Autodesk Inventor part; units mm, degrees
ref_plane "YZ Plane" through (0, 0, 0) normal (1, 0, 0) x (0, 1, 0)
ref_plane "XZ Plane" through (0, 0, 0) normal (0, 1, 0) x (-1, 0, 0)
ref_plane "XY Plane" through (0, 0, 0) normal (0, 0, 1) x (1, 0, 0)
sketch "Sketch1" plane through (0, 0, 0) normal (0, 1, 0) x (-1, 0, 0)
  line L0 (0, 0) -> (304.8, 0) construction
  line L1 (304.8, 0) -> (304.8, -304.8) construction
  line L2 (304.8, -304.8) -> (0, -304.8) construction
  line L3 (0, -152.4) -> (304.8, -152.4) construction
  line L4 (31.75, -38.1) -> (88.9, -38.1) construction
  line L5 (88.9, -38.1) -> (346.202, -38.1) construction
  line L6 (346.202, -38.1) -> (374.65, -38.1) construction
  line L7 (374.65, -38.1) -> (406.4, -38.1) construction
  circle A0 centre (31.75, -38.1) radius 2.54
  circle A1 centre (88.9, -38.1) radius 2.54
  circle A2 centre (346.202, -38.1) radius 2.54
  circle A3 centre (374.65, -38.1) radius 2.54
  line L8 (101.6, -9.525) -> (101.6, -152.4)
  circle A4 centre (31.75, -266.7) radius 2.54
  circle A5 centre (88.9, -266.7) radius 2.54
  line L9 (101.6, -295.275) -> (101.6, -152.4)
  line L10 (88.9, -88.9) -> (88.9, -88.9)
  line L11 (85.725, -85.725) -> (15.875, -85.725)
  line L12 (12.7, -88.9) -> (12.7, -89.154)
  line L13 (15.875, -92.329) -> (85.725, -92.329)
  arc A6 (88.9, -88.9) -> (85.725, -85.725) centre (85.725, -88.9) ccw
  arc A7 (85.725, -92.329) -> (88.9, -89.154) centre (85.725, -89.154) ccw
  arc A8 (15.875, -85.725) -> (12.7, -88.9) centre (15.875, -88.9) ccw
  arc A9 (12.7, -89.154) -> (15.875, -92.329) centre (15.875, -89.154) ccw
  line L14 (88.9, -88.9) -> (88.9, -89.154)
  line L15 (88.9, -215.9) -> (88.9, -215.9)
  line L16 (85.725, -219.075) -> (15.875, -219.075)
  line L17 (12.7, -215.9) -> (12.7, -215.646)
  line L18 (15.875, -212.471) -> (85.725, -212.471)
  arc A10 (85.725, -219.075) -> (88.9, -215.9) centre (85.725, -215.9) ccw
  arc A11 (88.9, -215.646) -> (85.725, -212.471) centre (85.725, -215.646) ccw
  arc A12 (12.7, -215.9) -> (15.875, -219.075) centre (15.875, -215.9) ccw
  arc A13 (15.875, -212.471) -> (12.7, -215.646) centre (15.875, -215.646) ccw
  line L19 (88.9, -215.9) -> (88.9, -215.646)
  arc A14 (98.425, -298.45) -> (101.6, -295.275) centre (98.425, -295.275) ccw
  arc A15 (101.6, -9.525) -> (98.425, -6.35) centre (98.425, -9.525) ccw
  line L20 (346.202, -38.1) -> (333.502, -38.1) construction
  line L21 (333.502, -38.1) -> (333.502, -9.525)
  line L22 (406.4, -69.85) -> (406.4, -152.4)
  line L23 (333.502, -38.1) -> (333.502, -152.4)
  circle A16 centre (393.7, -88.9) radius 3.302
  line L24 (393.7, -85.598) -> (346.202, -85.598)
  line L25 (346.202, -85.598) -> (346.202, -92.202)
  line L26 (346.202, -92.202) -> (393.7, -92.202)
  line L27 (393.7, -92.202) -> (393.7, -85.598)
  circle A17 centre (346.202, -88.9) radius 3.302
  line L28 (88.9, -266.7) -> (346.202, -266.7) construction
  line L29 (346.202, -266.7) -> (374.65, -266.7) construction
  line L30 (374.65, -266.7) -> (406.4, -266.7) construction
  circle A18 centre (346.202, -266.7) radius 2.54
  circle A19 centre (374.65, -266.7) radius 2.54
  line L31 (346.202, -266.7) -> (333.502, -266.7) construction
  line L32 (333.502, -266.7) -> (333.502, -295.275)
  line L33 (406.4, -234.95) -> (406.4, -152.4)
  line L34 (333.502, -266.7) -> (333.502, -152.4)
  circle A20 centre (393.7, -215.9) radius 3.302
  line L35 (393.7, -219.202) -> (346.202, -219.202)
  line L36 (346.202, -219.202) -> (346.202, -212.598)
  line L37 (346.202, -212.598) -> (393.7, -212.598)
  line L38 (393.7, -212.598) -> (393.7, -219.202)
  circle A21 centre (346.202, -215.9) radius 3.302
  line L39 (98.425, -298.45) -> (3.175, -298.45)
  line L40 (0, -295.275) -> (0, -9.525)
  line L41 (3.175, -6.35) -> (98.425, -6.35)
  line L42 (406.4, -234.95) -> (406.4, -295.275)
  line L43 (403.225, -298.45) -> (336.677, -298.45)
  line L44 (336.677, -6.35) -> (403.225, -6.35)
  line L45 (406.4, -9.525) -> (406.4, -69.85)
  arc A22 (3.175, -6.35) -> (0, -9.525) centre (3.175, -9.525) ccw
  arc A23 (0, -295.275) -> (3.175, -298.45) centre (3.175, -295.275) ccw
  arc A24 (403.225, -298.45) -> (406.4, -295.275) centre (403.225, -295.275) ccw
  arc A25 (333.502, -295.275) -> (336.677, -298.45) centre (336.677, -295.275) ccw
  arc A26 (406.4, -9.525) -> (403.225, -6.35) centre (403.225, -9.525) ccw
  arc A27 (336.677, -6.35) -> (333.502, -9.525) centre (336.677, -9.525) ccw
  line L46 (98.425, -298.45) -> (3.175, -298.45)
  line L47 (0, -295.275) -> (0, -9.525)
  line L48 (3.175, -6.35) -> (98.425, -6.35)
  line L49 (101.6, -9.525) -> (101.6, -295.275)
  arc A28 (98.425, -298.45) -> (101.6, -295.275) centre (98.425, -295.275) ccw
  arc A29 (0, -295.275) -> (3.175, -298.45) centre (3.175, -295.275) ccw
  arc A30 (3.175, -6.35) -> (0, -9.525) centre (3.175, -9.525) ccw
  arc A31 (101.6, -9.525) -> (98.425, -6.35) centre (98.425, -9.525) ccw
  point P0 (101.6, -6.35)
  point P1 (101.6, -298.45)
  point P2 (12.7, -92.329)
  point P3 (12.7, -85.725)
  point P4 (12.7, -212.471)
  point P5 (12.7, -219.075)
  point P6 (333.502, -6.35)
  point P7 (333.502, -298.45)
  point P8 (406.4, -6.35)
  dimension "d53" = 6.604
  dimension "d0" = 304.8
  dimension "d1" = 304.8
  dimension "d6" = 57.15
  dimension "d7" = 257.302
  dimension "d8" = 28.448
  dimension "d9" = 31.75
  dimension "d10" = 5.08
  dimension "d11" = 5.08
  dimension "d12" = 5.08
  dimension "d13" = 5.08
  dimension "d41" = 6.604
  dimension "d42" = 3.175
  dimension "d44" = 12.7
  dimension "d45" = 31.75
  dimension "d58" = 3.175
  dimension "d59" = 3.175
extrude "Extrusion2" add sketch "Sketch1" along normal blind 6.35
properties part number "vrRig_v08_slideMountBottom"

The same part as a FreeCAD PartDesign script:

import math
import FreeCAD as App
import Part
import Sketcher
from FreeCAD import Vector
Q = App.Units.Quantity

doc = App.newDocument("Part")
body = doc.addObject("PartDesign::Body", "Body")
body.AllowCompound = True

# Sketch on XZ plane
sketch1 = body.newObject("Sketcher::SketchObject", "Sketch")
sketch1.AttachmentSupport = (doc.getObject("XZ_Plane"), [""])
sketch1.MapMode = "FlatFace"
sketch1.addGeometry([
    Part.LineSegment(Vector(-101.6, -295.275, 0), Vector(-101.6, -9.525, 0)),  # 0
    Part.ArcOfCircle(Part.Circle(Vector(-98.425, -9.525, 0), Vector(0, 0, 1), 3.175), math.radians(90), math.radians(180)),  # 1
    Part.LineSegment(Vector(-98.425, -6.35, 0), Vector(-3.175, -6.35, 0)),  # 2
    Part.ArcOfCircle(Part.Circle(Vector(-3.175, -9.525, 0), Vector(0, 0, 1), 3.175), math.radians(0), math.radians(90)),  # 3
    Part.LineSegment(Vector(0, -9.525, 0), Vector(0, -295.275, 0)),  # 4
    Part.ArcOfCircle(Part.Circle(Vector(-3.175, -295.275, 0), Vector(0, 0, 1), 3.175), math.radians(-90), math.radians(0)),  # 5
    Part.LineSegment(Vector(-3.175, -298.45, 0), Vector(-98.425, -298.45, 0)),  # 6
    Part.ArcOfCircle(Part.Circle(Vector(-98.425, -295.275, 0), Vector(0, 0, 1), 3.175), math.radians(180), math.radians(270)),  # 7
    Part.Circle(Vector(-31.75, -266.7, 0), Vector(0, 0, 1), 2.54),  # 8
    Part.Circle(Vector(-88.9, -266.7, 0), Vector(0, 0, 1), 2.54),  # 9
    Part.ArcOfCircle(Part.Circle(Vector(-85.725, -215.9, 0), Vector(0, 0, 1), 3.175), math.radians(180), math.radians(270)),  # 10
    Part.LineSegment(Vector(-85.725, -219.075, 0), Vector(-15.875, -219.075, 0)),  # 11
    Part.ArcOfCircle(Part.Circle(Vector(-15.875, -215.9, 0), Vector(0, 0, 1), 3.175), math.radians(-90), math.radians(0)),  # 12
    Part.LineSegment(Vector(-12.7, -215.9, 0), Vector(-12.7, -215.646, 0)),  # 13
    Part.ArcOfCircle(Part.Circle(Vector(-15.875, -215.646, 0), Vector(0, 0, 1), 3.175), math.radians(0), math.radians(90)),  # 14
    Part.LineSegment(Vector(-15.875, -212.471, 0), Vector(-85.725, -212.471, 0)),  # 15
    Part.ArcOfCircle(Part.Circle(Vector(-85.725, -215.646, 0), Vector(0, 0, 1), 3.175), math.radians(90), math.radians(180)),  # 16
    Part.LineSegment(Vector(-88.9, -215.646, 0), Vector(-88.9, -215.9, 0)),  # 17
    Part.LineSegment(Vector(-15.875, -85.725, 0), Vector(-85.725, -85.725, 0)),  # 18
    Part.ArcOfCircle(Part.Circle(Vector(-85.725, -88.9, 0), Vector(0, 0, 1), 3.175), math.radians(90), math.radians(180)),  # 19
    Part.LineSegment(Vector(-88.9, -88.9, 0), Vector(-88.9, -89.154, 0)),  # 20
    Part.ArcOfCircle(Part.Circle(Vector(-85.725, -89.154, 0), Vector(0, 0, 1), 3.175), math.radians(180), math.radians(270)),  # 21
    Part.LineSegment(Vector(-85.725, -92.329, 0), Vector(-15.875, -92.329, 0)),  # 22
    Part.ArcOfCircle(Part.Circle(Vector(-15.875, -89.154, 0), Vector(0, 0, 1), 3.175), math.radians(-90), math.radians(0)),  # 23
    Part.LineSegment(Vector(-12.7, -89.154, 0), Vector(-12.7, -88.9, 0)),  # 24
    Part.ArcOfCircle(Part.Circle(Vector(-15.875, -88.9, 0), Vector(0, 0, 1), 3.175), math.radians(0), math.radians(90)),  # 25
    Part.Circle(Vector(-31.75, -38.1, 0), Vector(0, 0, 1), 2.54),  # 26
    Part.Circle(Vector(-88.9, -38.1, 0), Vector(0, 0, 1), 2.54),  # 27
    Part.LineSegment(Vector(-333.502, -9.525, 0), Vector(-333.502, -295.275, 0)),  # 28
    Part.ArcOfCircle(Part.Circle(Vector(-336.677, -295.275, 0), Vector(0, 0, 1), 3.175), math.radians(-90), math.radians(0)),  # 29
    Part.LineSegment(Vector(-336.677, -298.45, 0), Vector(-403.225, -298.45, 0)),  # 30
    Part.ArcOfCircle(Part.Circle(Vector(-403.225, -295.275, 0), Vector(0, 0, 1), 3.175), math.radians(180), math.radians(270)),  # 31
    Part.LineSegment(Vector(-406.4, -295.275, 0), Vector(-406.4, -9.525, 0)),  # 32
    Part.ArcOfCircle(Part.Circle(Vector(-403.225, -9.525, 0), Vector(0, 0, 1), 3.175), math.radians(90), math.radians(180)),  # 33
    Part.LineSegment(Vector(-403.225, -6.35, 0), Vector(-336.677, -6.35, 0)),  # 34
    Part.ArcOfCircle(Part.Circle(Vector(-336.677, -9.525, 0), Vector(0, 0, 1), 3.175), math.radians(0), math.radians(90)),  # 35
    Part.Circle(Vector(-346.202, -266.7, 0), Vector(0, 0, 1), 2.54),  # 36
    Part.Circle(Vector(-374.65, -266.7, 0), Vector(0, 0, 1), 2.54),  # 37
    Part.ArcOfCircle(Part.Circle(Vector(-393.7, -215.9, 0), Vector(0, 0, 1), 3.302), math.radians(90), math.radians(270)),  # 38
    Part.LineSegment(Vector(-393.7, -219.202, 0), Vector(-346.202, -219.202, 0)),  # 39
    Part.ArcOfCircle(Part.Circle(Vector(-346.202, -215.9, 0), Vector(0, 0, 1), 3.302), math.radians(-90), math.radians(90)),  # 40
    Part.LineSegment(Vector(-346.202, -212.598, 0), Vector(-393.7, -212.598, 0)),  # 41
    Part.ArcOfCircle(Part.Circle(Vector(-393.7, -88.9, 0), Vector(0, 0, 1), 3.302), math.radians(90), math.radians(270)),  # 42
    Part.LineSegment(Vector(-393.7, -92.202, 0), Vector(-346.202, -92.202, 0)),  # 43
    Part.ArcOfCircle(Part.Circle(Vector(-346.202, -88.9, 0), Vector(0, 0, 1), 3.302), math.radians(-90), math.radians(90)),  # 44
    Part.LineSegment(Vector(-346.202, -85.598, 0), Vector(-393.7, -85.598, 0)),  # 45
    Part.Circle(Vector(-346.202, -38.1, 0), Vector(0, 0, 1), 2.54),  # 46
    Part.Circle(Vector(-374.65, -38.1, 0), Vector(0, 0, 1), 2.54),  # 47
], False)
sketch1.addConstraint([
    Sketcher.Constraint("Tangent", 0, 2, 1, 2),
    Sketcher.Constraint("Tangent", 1, 1, 2, 1),
    Sketcher.Constraint("Tangent", 2, 2, 3, 2),
    Sketcher.Constraint("Tangent", 3, 1, 4, 1),
    Sketcher.Constraint("Tangent", 4, 2, 5, 2),
    Sketcher.Constraint("Tangent", 5, 1, 6, 1),
    Sketcher.Constraint("Tangent", 6, 2, 7, 2),
    Sketcher.Constraint("Tangent", 7, 1, 0, 1),
    Sketcher.Constraint("Tangent", 10, 2, 11, 1),
    Sketcher.Constraint("Tangent", 11, 2, 12, 1),
    Sketcher.Constraint("Tangent", 12, 2, 13, 1),
    Sketcher.Constraint("Tangent", 13, 2, 14, 1),
    Sketcher.Constraint("Tangent", 14, 2, 15, 1),
    Sketcher.Constraint("Tangent", 15, 2, 16, 1),
    Sketcher.Constraint("Tangent", 16, 2, 17, 1),
    Sketcher.Constraint("Tangent", 17, 2, 10, 1),
    Sketcher.Constraint("Tangent", 18, 2, 19, 1),
    Sketcher.Constraint("Tangent", 19, 2, 20, 1),
    Sketcher.Constraint("Tangent", 20, 2, 21, 1),
    Sketcher.Constraint("Tangent", 21, 2, 22, 1),
    Sketcher.Constraint("Tangent", 22, 2, 23, 1),
    Sketcher.Constraint("Tangent", 23, 2, 24, 1),
    Sketcher.Constraint("Tangent", 24, 2, 25, 1),
    Sketcher.Constraint("Tangent", 25, 2, 18, 1),
    Sketcher.Constraint("Tangent", 28, 2, 29, 2),
    Sketcher.Constraint("Tangent", 29, 1, 30, 1),
    Sketcher.Constraint("Tangent", 30, 2, 31, 2),
    Sketcher.Constraint("Tangent", 31, 1, 32, 1),
    Sketcher.Constraint("Tangent", 32, 2, 33, 2),
    Sketcher.Constraint("Tangent", 33, 1, 34, 1),
    Sketcher.Constraint("Tangent", 34, 2, 35, 2),
    Sketcher.Constraint("Tangent", 35, 1, 28, 1),
    Sketcher.Constraint("Tangent", 38, 2, 39, 1),
    Sketcher.Constraint("Tangent", 39, 2, 40, 1),
    Sketcher.Constraint("Tangent", 40, 2, 41, 1),
    Sketcher.Constraint("Tangent", 41, 2, 38, 1),
    Sketcher.Constraint("Tangent", 42, 2, 43, 1),
    Sketcher.Constraint("Tangent", 43, 2, 44, 1),
    Sketcher.Constraint("Tangent", 44, 2, 45, 1),
    Sketcher.Constraint("Tangent", 45, 2, 42, 1),
    Sketcher.Constraint("Vertical", 0),
    Sketcher.Constraint("Horizontal", 2),
    Sketcher.Constraint("Vertical", 4),
    Sketcher.Constraint("Horizontal", 6),
    Sketcher.Constraint("Horizontal", 11),
    Sketcher.Constraint("Vertical", 13),
    Sketcher.Constraint("Horizontal", 15),
    Sketcher.Constraint("Vertical", 17),
    Sketcher.Constraint("Horizontal", 18),
    Sketcher.Constraint("Vertical", 20),
    Sketcher.Constraint("Horizontal", 22),
    Sketcher.Constraint("Vertical", 24),
    Sketcher.Constraint("Vertical", 28),
    Sketcher.Constraint("Horizontal", 30),
    Sketcher.Constraint("Vertical", 32),
    Sketcher.Constraint("Horizontal", 34),
    Sketcher.Constraint("Horizontal", 39),
    Sketcher.Constraint("Horizontal", 41),
    Sketcher.Constraint("Horizontal", 43),
    Sketcher.Constraint("Horizontal", 45),
    Sketcher.Constraint("Equal", 1, 3),
    Sketcher.Constraint("Equal", 3, 5),
    Sketcher.Constraint("Equal", 5, 7),
    Sketcher.Constraint("Equal", 8, 9),
    Sketcher.Constraint("Equal", 7, 10),
    Sketcher.Constraint("Equal", 10, 12),
    Sketcher.Constraint("Equal", 12, 14),
    Sketcher.Constraint("Equal", 14, 16),
    Sketcher.Constraint("Equal", 16, 19),
    Sketcher.Constraint("Equal", 19, 21),
    Sketcher.Constraint("Equal", 21, 23),
    Sketcher.Constraint("Equal", 23, 25),
    Sketcher.Constraint("Equal", 9, 26),
    Sketcher.Constraint("Equal", 26, 27),
    Sketcher.Constraint("Equal", 25, 29),
    Sketcher.Constraint("Equal", 29, 31),
    Sketcher.Constraint("Equal", 31, 33),
    Sketcher.Constraint("Equal", 33, 35),
    Sketcher.Constraint("Equal", 27, 36),
    Sketcher.Constraint("Equal", 36, 37),
    Sketcher.Constraint("Equal", 40, 42),
    Sketcher.Constraint("Equal", 37, 46),
    Sketcher.Constraint("Equal", 46, 47),
    Sketcher.Constraint("PointOnObject", 3, 1, -2),
    Sketcher.Constraint("Horizontal", 8, 3, 9, 3),
    Sketcher.Constraint("Horizontal", 26, 3, 27, 3),
    Sketcher.Constraint("Horizontal", 7, 3, 29, 3),
    Sketcher.Constraint("Horizontal", 3, 3, 33, 3),
    Sketcher.Constraint("Horizontal", 9, 3, 36, 3),
    Sketcher.Constraint("Horizontal", 36, 3, 37, 3),
    Sketcher.Constraint("Horizontal", 12, 3, 38, 3),
    Sketcher.Constraint("Horizontal", 25, 3, 42, 3),
    Sketcher.Constraint("Horizontal", 27, 3, 46, 3),
    Sketcher.Constraint("Horizontal", 46, 3, 47, 3),
    Sketcher.Constraint("Vertical", 16, 3, 19, 3),
    Sketcher.Constraint("Vertical", 14, 3, 23, 3),
    Sketcher.Constraint("Vertical", 8, 3, 26, 3),
    Sketcher.Constraint("Vertical", 9, 3, 27, 3),
    Sketcher.Constraint("Vertical", 36, 3, 40, 3),
    Sketcher.Constraint("Vertical", 38, 3, 42, 3),
    Sketcher.Constraint("Vertical", 40, 3, 44, 3),
    Sketcher.Constraint("Vertical", 44, 3, 46, 3),
    Sketcher.Constraint("Vertical", 37, 3, 47, 3),
    Sketcher.Constraint("Vertical", 27, 3, 16, 2),
    Sketcher.Constraint("Equal", 17, 20),
    Sketcher.Constraint("Diameter", 8, Q("0.2 in")),
    Sketcher.Constraint("Radius", 38, Q("0.13 in")),
    Sketcher.Constraint("Radius", 1, Q("0.125 in")),
    Sketcher.Constraint("DistanceX", 12, 2, -1, 1, Q("0.5 in")),
    Sketcher.Constraint("DistanceX", 8, 3, -1, 1, Q("1.25 in")),
    Sketcher.Constraint("DistanceX", 0, 2, -1, 1, Q("4 in")),
    Sketcher.Constraint("DistanceX", 31, 1, -1, 1, Q("16 in")),
    Sketcher.Constraint("DistanceX", 11, 1, 11, 2, Q("2.75 in")),
    Sketcher.Constraint("DistanceX", 30, 2, 30, 1, Q("2.62 in")),
    Sketcher.Constraint("DistanceX", 39, 1, 39, 2, Q("1.87 in")),
    Sketcher.Constraint("DistanceY", 0, 1, 0, 2, Q("11.25 in")),
    Sketcher.Constraint("DistanceY", 13, 1, 13, 2, Q("0.01 in")),
    Sketcher.Constraint("DistanceY", 8, 3, -1, 1, Q("10.5 in")),
    Sketcher.Constraint("DistanceY", 10, 3, -1, 1, Q("8.5 in")),
    Sketcher.Constraint("DistanceY", 19, 3, -1, 1, Q("3.5 in")),
    Sketcher.Constraint("DistanceY", 26, 3, -1, 1, Q("1.5 in")),
    Sketcher.Constraint("DistanceX", 38, 3, -1, 1, Q("15.5 in")),
    Sketcher.Constraint("DistanceX", 37, 3, -1, 1, Q("14.75 in")),
    Sketcher.Constraint("DistanceY", 1, 1, -1, 1, Q("0.25 in")),
])
pad1 = body.newObject("PartDesign::Pad", "Pad")
pad1.Profile = sketch1
pad1.Length = Q("0.25 in")
pad1.Reversed = True

doc.recompute()
